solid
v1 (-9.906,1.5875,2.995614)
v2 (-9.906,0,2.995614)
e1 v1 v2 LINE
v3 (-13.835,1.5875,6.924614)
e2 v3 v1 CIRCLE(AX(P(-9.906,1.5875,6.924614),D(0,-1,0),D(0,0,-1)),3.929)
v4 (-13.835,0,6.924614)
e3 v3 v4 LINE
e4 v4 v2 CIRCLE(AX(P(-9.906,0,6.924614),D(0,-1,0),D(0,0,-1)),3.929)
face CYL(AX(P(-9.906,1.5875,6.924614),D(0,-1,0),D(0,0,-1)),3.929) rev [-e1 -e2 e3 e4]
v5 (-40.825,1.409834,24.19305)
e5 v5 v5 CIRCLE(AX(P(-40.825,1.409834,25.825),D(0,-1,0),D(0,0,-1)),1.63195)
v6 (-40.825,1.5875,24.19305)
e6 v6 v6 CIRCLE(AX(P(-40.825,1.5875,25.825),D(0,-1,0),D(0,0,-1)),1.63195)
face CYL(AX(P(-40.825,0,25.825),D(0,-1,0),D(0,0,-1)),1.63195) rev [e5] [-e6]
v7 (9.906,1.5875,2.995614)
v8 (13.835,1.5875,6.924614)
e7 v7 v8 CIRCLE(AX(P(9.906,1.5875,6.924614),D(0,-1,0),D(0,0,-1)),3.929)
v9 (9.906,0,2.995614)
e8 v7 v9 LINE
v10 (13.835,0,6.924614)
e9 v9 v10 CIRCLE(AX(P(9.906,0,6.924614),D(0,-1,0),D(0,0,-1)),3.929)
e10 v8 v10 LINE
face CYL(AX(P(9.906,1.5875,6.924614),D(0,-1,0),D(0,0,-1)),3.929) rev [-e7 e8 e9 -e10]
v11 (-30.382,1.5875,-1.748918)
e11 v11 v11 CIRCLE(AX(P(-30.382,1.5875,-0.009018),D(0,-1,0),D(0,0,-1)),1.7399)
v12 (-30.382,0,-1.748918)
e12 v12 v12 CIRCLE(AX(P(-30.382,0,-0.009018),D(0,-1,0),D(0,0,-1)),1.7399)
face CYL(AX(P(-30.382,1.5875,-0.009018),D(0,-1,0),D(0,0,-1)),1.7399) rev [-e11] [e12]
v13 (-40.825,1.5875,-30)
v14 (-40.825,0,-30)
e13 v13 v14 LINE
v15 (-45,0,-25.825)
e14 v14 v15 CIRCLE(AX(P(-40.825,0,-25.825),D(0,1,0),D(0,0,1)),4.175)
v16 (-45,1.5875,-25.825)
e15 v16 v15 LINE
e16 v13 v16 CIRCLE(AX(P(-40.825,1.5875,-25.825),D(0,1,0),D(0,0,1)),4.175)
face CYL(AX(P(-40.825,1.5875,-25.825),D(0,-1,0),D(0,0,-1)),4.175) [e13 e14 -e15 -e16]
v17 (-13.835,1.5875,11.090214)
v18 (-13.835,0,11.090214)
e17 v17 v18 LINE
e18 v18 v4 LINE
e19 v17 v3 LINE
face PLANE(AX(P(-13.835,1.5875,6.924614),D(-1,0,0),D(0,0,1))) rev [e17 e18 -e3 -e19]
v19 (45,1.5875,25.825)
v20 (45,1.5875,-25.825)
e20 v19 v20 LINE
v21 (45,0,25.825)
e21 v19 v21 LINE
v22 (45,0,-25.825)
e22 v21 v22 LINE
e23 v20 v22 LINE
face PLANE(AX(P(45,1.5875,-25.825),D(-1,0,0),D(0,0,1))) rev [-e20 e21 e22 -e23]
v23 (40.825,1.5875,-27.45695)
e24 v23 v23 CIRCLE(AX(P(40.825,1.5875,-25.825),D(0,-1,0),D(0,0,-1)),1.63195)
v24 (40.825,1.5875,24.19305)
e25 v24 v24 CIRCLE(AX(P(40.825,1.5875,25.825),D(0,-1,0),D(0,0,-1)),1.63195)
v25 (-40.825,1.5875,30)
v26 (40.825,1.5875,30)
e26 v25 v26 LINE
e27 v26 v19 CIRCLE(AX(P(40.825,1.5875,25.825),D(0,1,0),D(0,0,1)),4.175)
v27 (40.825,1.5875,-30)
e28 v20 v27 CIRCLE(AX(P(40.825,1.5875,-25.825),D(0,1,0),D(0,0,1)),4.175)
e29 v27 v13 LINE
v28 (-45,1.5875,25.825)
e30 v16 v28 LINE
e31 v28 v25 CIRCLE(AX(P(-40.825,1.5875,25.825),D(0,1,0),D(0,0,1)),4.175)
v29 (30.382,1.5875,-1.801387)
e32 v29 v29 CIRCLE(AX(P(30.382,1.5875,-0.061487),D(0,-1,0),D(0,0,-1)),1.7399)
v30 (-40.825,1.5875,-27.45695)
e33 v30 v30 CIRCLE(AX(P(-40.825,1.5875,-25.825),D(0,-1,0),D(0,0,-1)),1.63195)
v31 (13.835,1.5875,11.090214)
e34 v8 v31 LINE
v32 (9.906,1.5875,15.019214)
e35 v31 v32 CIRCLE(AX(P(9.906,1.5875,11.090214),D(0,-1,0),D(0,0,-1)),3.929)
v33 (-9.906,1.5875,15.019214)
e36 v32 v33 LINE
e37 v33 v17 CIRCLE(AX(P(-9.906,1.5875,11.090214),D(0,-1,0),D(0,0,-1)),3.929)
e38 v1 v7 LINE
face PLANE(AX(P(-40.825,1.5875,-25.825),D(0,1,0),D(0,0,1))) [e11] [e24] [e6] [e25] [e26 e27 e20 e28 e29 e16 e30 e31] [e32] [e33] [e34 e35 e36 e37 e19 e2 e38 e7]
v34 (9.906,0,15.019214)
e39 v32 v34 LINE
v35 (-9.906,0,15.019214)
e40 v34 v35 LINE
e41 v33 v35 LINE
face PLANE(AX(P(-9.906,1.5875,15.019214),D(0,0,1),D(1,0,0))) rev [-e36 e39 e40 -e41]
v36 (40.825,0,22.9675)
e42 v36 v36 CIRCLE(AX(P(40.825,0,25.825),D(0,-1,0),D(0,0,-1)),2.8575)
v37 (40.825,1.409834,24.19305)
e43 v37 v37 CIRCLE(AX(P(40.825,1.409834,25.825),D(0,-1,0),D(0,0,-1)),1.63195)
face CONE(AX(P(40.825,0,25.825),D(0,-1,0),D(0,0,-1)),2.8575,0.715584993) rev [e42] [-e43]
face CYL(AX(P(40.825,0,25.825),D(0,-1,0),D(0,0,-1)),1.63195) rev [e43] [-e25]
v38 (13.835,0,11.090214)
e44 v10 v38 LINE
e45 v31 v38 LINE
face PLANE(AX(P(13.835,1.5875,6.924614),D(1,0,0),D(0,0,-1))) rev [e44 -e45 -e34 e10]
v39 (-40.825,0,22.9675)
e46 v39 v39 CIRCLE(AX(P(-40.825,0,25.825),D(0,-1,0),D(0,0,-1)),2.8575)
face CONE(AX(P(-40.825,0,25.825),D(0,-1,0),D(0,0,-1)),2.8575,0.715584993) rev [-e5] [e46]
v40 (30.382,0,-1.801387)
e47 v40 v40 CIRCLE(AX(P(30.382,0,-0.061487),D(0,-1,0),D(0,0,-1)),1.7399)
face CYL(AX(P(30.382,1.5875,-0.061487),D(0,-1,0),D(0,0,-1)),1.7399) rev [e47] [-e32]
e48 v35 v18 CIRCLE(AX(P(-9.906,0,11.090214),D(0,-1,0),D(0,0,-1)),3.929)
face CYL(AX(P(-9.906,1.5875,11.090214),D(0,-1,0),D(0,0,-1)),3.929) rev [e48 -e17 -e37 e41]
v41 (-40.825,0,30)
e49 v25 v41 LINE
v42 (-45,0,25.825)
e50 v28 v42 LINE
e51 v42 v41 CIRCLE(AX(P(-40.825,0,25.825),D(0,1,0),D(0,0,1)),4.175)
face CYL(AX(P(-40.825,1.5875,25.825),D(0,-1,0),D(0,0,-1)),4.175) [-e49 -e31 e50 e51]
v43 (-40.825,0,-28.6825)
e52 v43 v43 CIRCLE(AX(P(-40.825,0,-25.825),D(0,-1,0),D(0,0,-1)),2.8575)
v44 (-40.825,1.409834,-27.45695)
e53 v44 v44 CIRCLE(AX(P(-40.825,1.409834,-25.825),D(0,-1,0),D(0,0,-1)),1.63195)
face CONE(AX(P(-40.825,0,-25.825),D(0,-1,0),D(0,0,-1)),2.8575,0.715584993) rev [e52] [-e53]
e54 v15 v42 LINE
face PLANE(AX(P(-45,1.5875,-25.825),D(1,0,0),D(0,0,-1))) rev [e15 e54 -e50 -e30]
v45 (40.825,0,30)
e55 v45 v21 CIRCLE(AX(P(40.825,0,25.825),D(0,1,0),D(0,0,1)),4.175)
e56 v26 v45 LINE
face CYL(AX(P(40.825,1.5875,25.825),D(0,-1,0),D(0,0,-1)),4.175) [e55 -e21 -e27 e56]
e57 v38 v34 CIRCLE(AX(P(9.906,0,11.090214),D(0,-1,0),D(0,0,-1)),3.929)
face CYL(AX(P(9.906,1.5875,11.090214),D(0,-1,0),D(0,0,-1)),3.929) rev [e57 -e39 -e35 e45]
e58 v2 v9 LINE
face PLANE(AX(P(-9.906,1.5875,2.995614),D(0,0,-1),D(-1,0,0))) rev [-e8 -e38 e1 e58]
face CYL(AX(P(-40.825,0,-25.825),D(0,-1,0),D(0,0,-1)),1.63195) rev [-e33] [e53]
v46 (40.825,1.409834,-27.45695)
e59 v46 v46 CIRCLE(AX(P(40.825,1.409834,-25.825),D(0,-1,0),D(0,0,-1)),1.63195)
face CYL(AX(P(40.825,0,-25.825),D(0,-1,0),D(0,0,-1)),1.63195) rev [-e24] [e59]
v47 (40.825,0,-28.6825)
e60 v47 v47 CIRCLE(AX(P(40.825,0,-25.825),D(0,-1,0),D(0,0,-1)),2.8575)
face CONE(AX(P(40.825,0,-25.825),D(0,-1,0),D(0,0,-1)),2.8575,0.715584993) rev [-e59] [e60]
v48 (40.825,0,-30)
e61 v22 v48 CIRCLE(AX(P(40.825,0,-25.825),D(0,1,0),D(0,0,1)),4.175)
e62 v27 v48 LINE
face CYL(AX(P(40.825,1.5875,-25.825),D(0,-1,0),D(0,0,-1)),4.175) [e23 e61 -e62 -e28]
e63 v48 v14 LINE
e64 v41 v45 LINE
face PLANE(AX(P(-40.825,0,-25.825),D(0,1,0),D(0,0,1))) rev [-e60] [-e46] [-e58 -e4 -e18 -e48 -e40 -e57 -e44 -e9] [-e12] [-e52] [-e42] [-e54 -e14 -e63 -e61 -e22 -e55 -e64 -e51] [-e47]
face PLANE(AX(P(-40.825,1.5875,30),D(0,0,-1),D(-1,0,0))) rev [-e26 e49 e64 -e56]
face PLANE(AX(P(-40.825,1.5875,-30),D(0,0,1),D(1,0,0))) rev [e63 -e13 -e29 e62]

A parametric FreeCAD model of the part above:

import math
import FreeCAD as App
import Part
import Sketcher
Q = App.Units.Quantity


def add_polygon(sketch, points):
    """Adds a closed chain of lines whose ends are joined by coincident constraints."""
    first, n = sketch.GeometryCount, len(points)
    for a, b in zip(points, points[1:] + points[:1]):
        sketch.addGeometry(Part.LineSegment(App.Vector(*a, 0), App.Vector(*b, 0)), False)
    for i in range(n):
        sketch.addConstraint(Sketcher.Constraint("Coincident", first + i, 2, first + (i + 1) % n, 1))

doc = App.newDocument("Part")
params = doc.addObject("Spreadsheet::Sheet", "Params")
for row, (alias, value) in enumerate([
    ("pad1_length", "0.0625 in"),
    ("sketch2_width", "0.78 in"),
    ("sketch2_height", "0.164 in"),
    ("sketch3_width", "0.0625 in"),
    ("groove_angle", "360 deg"),
    ("linearpattern_pitch", "51.65 mm"),
    ("linearpattern2_pitch", "81.65 mm"),
    ("linearpattern3_pitch", "96.614932 mm"),
    ("sketch4_diameter", "0.137 in"),
], start=1):
    params.set(f"A{row}", alias)
    params.set(f"B{row}", "=" + value)
    params.setAlias(f"B{row}", alias)

body = doc.addObject("PartDesign::Body", "Body")

# Sketch on XZ plane
sketch1 = doc.addObject("Sketcher::SketchObject", "Sketch")
body.addObject(sketch1)
sketch1.AttachmentSupport = (doc.XZ_Plane, [""])
sketch1.MapMode = "FlatFace"
sketch1.addGeometry([
    Part.LineSegment(App.Vector(-45, -25.8, 0), App.Vector(-45, 25.8, 0)),  # 0
    Part.ArcOfCircle(Part.Circle(App.Vector(-40.8, 25.8, 0), App.Vector(0, 0, 1), 4.2), math.radians(90), math.radians(180)),  # 1
    Part.LineSegment(App.Vector(-40.8, 30, 0), App.Vector(40.8, 30, 0)),  # 2
    Part.ArcOfCircle(Part.Circle(App.Vector(40.8, 25.8, 0), App.Vector(0, 0, 1), 4.2), math.radians(0), math.radians(90)),  # 3
    Part.LineSegment(App.Vector(45, 25.8, 0), App.Vector(45, -25.8, 0)),  # 4
    Part.ArcOfCircle(Part.Circle(App.Vector(40.8, -25.8, 0), App.Vector(0, 0, 1), 4.2), math.radians(-90), math.radians(0)),  # 5
    Part.LineSegment(App.Vector(40.8, -30, 0), App.Vector(-40.8, -30, 0)),  # 6
    Part.ArcOfCircle(Part.Circle(App.Vector(-40.8, -25.8, 0), App.Vector(0, 0, 1), 4.2), math.radians(-180), math.radians(-90)),  # 7
    Part.Circle(App.Vector(-40.8, 25.8, 0), App.Vector(0, 0, 1), 1),  # 8
    Part.Circle(App.Vector(40.8, 25.8, 0), App.Vector(0, 0, 1), 1),  # 9
    Part.Circle(App.Vector(-40.8, -25.8, 0), App.Vector(0, 0, 1), 1),  # 10
    Part.Circle(App.Vector(40.8, -25.8, 0), App.Vector(0, 0, 1), 1),  # 11
], False)
sketch1.addConstraint([
    Sketcher.Constraint("Tangent", 0, 2, 1, 2),
    Sketcher.Constraint("Tangent", 1, 1, 2, 1),
    Sketcher.Constraint("Tangent", 2, 2, 3, 2),
    Sketcher.Constraint("Tangent", 3, 1, 4, 1),
    Sketcher.Constraint("Tangent", 4, 2, 5, 2),
    Sketcher.Constraint("Tangent", 5, 1, 6, 1),
    Sketcher.Constraint("Tangent", 6, 2, 7, 2),
    Sketcher.Constraint("Tangent", 7, 1, 0, 1),
    Sketcher.Constraint("Vertical", 0),
    Sketcher.Constraint("Horizontal", 2),
    Sketcher.Constraint("Vertical", 4),
    Sketcher.Constraint("Horizontal", 6),
    Sketcher.Constraint("Coincident", 8, 3, 1, 3),
    Sketcher.Constraint("Coincident", 9, 3, 3, 3),
    Sketcher.Constraint("Coincident", 10, 3, 7, 3),
    Sketcher.Constraint("Coincident", 11, 3, 5, 3),
    Sketcher.Constraint("Equal", 1, 3),
    Sketcher.Constraint("Equal", 3, 5),
    Sketcher.Constraint("Equal", 5, 7),
    Sketcher.Constraint("Equal", 8, 9),
    Sketcher.Constraint("Equal", 9, 10),
    Sketcher.Constraint("Equal", 10, 11),
    Sketcher.Constraint("Symmetric", 1, 3, 5, 3, -1, 1),
    Sketcher.Constraint("Diameter", 8, Q("2 mm")),
    Sketcher.Constraint("Radius", 1, Q("4.175 mm")),
    Sketcher.Constraint("DistanceX", 2, 1, 2, 2, Q("81.65 mm")),
    Sketcher.Constraint("DistanceY", 0, 1, 0, 2, Q("51.65 mm")),
])
pad1 = doc.addObject("PartDesign::Pad", "Pad")
body.addObject(pad1)
pad1.Profile = sketch1
pad1.setExpression("Length", "Params.pad1_length")
pad1.Reversed = True

# Sketch on XZ plane
sketch2 = doc.addObject("Sketcher::SketchObject", "Sketch001")
body.addObject(sketch2)
sketch2.AttachmentSupport = (doc.XZ_Plane, [""])
sketch2.MapMode = "FlatFace"
sketch2.addGeometry([
    Part.LineSegment(App.Vector(-13.8, 11.1, 0), App.Vector(-13.8, 6.9, 0)),  # 0
    Part.ArcOfCircle(Part.Circle(App.Vector(-9.9, 6.9, 0), App.Vector(0, 0, 1), 3.9), math.radians(180), math.radians(270)),  # 1
    Part.LineSegment(App.Vector(-9.9, 3, 0), App.Vector(9.9, 3, 0)),  # 2
    Part.ArcOfCircle(Part.Circle(App.Vector(9.9, 6.9, 0), App.Vector(0, 0, 1), 3.9), math.radians(-90), math.radians(0)),  # 3
    Part.LineSegment(App.Vector(13.8, 6.9, 0), App.Vector(13.8, 11.1, 0)),  # 4
    Part.ArcOfCircle(Part.Circle(App.Vector(9.9, 11.1, 0), App.Vector(0, 0, 1), 3.9), math.radians(0), math.radians(90)),  # 5
    Part.LineSegment(App.Vector(9.9, 15, 0), App.Vector(-9.9, 15, 0)),  # 6
    Part.ArcOfCircle(Part.Circle(App.Vector(-9.9, 11.1, 0), App.Vector(0, 0, 1), 3.9), math.radians(90), math.radians(180)),  # 7
], False)
sketch2.addConstraint([
    Sketcher.Constraint("Tangent", 0, 2, 1, 1),
    Sketcher.Constraint("Tangent", 1, 2, 2, 1),
    Sketcher.Constraint("Tangent", 2, 2, 3, 1),
    Sketcher.Constraint("Tangent", 3, 2, 4, 1),
    Sketcher.Constraint("Tangent", 4, 2, 5, 1),
    Sketcher.Constraint("Tangent", 5, 2, 6, 1),
    Sketcher.Constraint("Tangent", 6, 2, 7, 1),
    Sketcher.Constraint("Tangent", 7, 2, 0, 1),
    Sketcher.Constraint("Vertical", 0),
    Sketcher.Constraint("Horizontal", 2),
    Sketcher.Constraint("Vertical", 4),
    Sketcher.Constraint("Horizontal", 6),
    Sketcher.Constraint("Equal", 1, 3),
    Sketcher.Constraint("Equal", 3, 5),
    Sketcher.Constraint("Equal", 5, 7),
    Sketcher.Constraint("DistanceX", 2, 1, 2, 2, Q("0.78 in")),
    Sketcher.Constraint("DistanceY", 0, 2, 0, 1, Q("0.164 in")),
    Sketcher.Constraint("DistanceX", 1, 3, -1, 1, Q("0.39 in")),
    Sketcher.Constraint("Radius", 1, Q("3.929 mm")),
    Sketcher.Constraint("DistanceY", -1, 1, 1, 3, Q("6.924614 mm")),
])
sketch2.setExpression("Constraints[15]", "Params.sketch2_width")
sketch2.setExpression("Constraints[16]", "Params.sketch2_height")
pocket1 = doc.addObject("PartDesign::Pocket", "Pocket")
body.addObject(pocket1)
pocket1.Profile = sketch2
pocket1.Type = "ThroughAll"

# Sketch on YZ plane
sketch3 = doc.addObject("Sketcher::SketchObject", "Sketch002")
body.addObject(sketch3)
sketch3.AttachmentSupport = (doc.YZ_Plane, [""])
sketch3.MapMode = "FlatFace"
sketch3.AttachmentOffset = App.Placement(App.Vector(0, 0, -40.825), App.Rotation())
add_polygon(sketch3, [(1.59, 25.82), (0, 25.82), (0, 22.97), (1.41, 24.19), (1.59, 24.19)])  # lines 0-4
sketch3.addGeometry(Part.LineSegment(App.Vector(0, 25.82, 0), App.Vector(1.59, 25.82, 0)), True)  # axis
sketch3.addConstraint([
    Sketcher.Constraint("Horizontal", 0),
    Sketcher.Constraint("Vertical", 1),
    Sketcher.Constraint("Horizontal", 3),
    Sketcher.Constraint("Vertical", 4),
    Sketcher.Constraint("Horizontal", 5),
    Sketcher.Constraint("Coincident", 5, 1, 0, 2),
    Sketcher.Constraint("PointOnObject", 0, 2, -2),
    Sketcher.Constraint("Vertical", 3, 2, 5, 2),
    Sketcher.Constraint("Angle", 2, Q("41 deg")),
    Sketcher.Constraint("DistanceX", 0, 2, 0, 1, Q("0.0625 in")),
    Sketcher.Constraint("DistanceY", 1, 2, 1, 1, Q("0.1125 in")),
    Sketcher.Constraint("DistanceY", 4, 1, 4, 2, Q("1.63195 mm")),
    Sketcher.Constraint("DistanceY", -1, 1, 0, 2, Q("25.825 mm")),
])
sketch3.setExpression("Constraints[14]", "Params.sketch3_width")
groove = doc.addObject("PartDesign::Groove", "Groove")
body.addObject(groove)
groove.Profile = sketch3
groove.ReferenceAxis = (sketch3, ["Axis0"])
groove.setExpression("Angle", "Params.groove_angle")
doc.recompute()

linearpattern = doc.addObject("PartDesign::LinearPattern", "LinearPattern")
body.addObject(linearpattern)
linearpattern.Originals = [groove]
linearpattern.Direction = (doc.Z_Axis, [""])
linearpattern.Mode = "offset"
linearpattern.setExpression("Offset", "Params.linearpattern_pitch")
linearpattern.Occurrences = 2
linearpattern.Reversed = True
body.Tip = linearpattern
doc.recompute()

linearpattern2 = doc.addObject("PartDesign::LinearPattern", "LinearPattern001")
body.addObject(linearpattern2)
linearpattern2.Originals = [groove]
linearpattern2.Direction = (doc.X_Axis, [""])
linearpattern2.Mode = "offset"
linearpattern2.setExpression("Offset", "Params.linearpattern2_pitch")
linearpattern2.Occurrences = 2
body.Tip = linearpattern2
doc.recompute()

datumline = doc.addObject("PartDesign::Line", "DatumLine")
body.addObject(datumline)
datumline.Placement = App.Placement(App.Vector(0, 0, 0), App.Rotation(App.Vector(0, 0, 1), App.Vector(0.845107466, 0, -0.534596456)))
linearpattern3 = doc.addObject("PartDesign::LinearPattern", "LinearPattern002")
body.addObject(linearpattern3)
linearpattern3.Originals = [groove]
linearpattern3.Direction = (datumline, [""])
linearpattern3.Mode = "offset"
linearpattern3.setExpression("Offset", "Params.linearpattern3_pitch")
linearpattern3.Occurrences = 2
body.Tip = linearpattern3

# Sketch on XZ plane
sketch4 = doc.addObject("Sketcher::SketchObject", "Sketch003")
body.addObject(sketch4)
sketch4.AttachmentSupport = (doc.XZ_Plane, [""])
sketch4.MapMode = "FlatFace"
sketch4.addGeometry([
    Part.Circle(App.Vector(-30.4, 0, 0), App.Vector(0, 0, 1), 1.7),
    Part.Circle(App.Vector(30.4, -0.1, 0), App.Vector(0, 0, 1), 1.7),
], False)
sketch4.addConstraint([
    Sketcher.Constraint("Equal", 0, 1),
    Sketcher.Constraint("Diameter", 0, Q("0.137 in")),
    Sketcher.Constraint("DistanceX", 0, 3, -1, 1, Q("30.382 mm")),
    Sketcher.Constraint("DistanceX", -1, 1, 1, 3, Q("30.382 mm")),
    Sketcher.Constraint("DistanceY", 1, 3, 0, 3, Q("0.05247 mm")),
    Sketcher.Constraint("DistanceY", 0, 3, -1, 1, Q("0.009018 mm")),
])
sketch4.setExpression("Constraints[1]", "Params.sketch4_diameter")
pocket2 = doc.addObject("PartDesign::Pocket", "Pocket001")
body.addObject(pocket2)
pocket2.Profile = sketch4
pocket2.Type = "ThroughAll"

doc.recompute()
